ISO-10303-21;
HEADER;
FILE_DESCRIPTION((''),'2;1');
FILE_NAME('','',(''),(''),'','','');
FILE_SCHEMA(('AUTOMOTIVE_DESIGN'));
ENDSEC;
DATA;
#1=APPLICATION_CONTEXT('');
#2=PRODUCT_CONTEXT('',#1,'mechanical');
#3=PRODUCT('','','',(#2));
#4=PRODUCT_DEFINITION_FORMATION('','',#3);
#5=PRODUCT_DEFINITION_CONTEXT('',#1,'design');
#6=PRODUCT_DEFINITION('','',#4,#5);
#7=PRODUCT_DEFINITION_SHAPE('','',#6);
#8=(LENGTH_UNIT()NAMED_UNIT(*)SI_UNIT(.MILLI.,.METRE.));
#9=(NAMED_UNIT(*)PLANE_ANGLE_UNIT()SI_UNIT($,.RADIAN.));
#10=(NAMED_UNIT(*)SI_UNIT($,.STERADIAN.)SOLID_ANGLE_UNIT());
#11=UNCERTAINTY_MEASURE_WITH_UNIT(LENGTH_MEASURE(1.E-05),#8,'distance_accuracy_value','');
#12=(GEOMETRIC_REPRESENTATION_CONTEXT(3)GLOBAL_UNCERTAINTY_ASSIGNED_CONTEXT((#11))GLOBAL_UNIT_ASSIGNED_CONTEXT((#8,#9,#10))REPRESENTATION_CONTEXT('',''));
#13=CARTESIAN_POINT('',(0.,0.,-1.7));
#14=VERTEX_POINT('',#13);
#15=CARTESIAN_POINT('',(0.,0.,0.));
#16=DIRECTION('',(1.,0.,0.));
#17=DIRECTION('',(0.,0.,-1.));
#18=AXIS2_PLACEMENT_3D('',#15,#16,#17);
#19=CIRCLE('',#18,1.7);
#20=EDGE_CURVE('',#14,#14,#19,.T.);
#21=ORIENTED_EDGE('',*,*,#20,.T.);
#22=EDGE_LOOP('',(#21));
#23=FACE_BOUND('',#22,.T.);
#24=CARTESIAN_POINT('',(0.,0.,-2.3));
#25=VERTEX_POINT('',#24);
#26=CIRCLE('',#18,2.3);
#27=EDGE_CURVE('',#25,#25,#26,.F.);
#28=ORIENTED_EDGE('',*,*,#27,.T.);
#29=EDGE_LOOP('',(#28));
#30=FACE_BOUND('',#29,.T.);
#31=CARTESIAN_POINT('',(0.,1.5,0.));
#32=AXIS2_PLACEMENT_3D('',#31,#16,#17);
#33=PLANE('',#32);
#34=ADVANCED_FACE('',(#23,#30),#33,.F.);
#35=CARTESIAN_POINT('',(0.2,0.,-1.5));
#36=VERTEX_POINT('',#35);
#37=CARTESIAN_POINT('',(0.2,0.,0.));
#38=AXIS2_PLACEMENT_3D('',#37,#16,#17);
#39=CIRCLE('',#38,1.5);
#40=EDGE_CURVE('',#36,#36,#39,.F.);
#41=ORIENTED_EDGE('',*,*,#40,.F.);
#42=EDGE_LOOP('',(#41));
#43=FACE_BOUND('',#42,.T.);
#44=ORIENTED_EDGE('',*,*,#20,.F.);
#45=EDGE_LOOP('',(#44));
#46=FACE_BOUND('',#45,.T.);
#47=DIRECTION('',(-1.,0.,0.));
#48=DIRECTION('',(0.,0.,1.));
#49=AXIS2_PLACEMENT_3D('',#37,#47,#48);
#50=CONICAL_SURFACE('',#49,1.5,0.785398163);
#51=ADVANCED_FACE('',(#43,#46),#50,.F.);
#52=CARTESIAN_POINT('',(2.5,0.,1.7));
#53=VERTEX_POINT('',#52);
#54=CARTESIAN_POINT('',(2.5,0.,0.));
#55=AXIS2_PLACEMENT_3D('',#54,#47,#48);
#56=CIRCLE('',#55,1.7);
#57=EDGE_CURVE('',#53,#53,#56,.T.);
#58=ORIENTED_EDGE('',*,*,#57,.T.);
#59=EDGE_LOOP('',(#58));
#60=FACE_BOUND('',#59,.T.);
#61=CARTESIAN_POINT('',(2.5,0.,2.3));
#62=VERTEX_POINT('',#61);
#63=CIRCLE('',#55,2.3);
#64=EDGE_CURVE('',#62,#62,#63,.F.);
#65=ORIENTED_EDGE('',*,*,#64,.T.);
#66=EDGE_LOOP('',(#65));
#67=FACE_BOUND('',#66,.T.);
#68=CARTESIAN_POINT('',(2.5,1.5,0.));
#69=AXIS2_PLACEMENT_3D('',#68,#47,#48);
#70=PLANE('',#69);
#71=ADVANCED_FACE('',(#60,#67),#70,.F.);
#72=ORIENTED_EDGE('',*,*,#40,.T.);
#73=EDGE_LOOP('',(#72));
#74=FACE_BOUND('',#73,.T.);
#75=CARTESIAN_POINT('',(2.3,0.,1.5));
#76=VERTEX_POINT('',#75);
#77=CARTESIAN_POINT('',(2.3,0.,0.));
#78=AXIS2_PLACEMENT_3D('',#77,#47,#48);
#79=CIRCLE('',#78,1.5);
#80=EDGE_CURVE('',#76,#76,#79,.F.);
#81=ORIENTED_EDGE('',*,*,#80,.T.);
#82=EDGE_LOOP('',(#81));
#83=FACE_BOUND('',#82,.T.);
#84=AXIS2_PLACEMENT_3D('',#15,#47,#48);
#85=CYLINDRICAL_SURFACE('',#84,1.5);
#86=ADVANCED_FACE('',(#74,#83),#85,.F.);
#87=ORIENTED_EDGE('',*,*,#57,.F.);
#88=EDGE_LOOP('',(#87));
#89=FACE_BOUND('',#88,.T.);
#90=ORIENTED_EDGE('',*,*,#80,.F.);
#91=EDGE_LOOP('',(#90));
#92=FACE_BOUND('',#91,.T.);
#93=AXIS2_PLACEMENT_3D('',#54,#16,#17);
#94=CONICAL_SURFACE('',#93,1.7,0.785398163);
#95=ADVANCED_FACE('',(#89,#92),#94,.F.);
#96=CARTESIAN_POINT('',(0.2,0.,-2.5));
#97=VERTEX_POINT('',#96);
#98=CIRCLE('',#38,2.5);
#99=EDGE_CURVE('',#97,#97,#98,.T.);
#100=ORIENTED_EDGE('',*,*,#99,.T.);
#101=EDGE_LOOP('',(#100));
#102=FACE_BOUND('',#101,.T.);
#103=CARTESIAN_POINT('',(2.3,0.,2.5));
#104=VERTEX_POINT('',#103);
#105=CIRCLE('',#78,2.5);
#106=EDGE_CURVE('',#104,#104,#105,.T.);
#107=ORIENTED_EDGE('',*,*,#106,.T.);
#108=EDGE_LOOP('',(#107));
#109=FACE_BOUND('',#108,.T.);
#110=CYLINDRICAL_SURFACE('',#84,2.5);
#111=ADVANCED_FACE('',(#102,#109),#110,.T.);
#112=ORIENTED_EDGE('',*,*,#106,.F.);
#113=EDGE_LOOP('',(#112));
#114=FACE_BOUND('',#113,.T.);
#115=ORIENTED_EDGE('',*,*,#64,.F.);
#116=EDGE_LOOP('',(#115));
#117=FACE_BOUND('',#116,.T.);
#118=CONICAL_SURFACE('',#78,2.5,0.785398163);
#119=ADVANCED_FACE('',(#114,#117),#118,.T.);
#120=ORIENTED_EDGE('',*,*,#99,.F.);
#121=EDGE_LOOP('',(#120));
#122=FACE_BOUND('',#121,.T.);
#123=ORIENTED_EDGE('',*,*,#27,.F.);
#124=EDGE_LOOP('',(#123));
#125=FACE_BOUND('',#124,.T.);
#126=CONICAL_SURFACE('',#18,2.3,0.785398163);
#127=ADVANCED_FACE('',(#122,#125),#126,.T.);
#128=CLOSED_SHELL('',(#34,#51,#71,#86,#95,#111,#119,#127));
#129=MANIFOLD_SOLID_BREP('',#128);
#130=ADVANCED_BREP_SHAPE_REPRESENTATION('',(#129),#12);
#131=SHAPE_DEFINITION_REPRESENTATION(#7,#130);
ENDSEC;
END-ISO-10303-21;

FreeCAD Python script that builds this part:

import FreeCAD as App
import Part
import Sketcher
from FreeCAD import Vector
Q = App.Units.Quantity


def edges_at(feature, points):
    """Names of the edges that pass closest to the given points."""
    edges = feature.Shape.Edges
    near = lambda p: min(range(len(edges)), key=lambda i: edges[i].distToShape(Part.Vertex(*p))[0])
    return sorted({f"Edge{near(p) + 1}" for p in points})

doc = App.newDocument("Part")
body = doc.addObject("PartDesign::Body", "Body")

sketch1 = body.newObject("Sketcher::SketchObject", "Sketch")
sketch1.AttachmentSupport = (doc.getObject("XY_Plane"), [""])
sketch1.MapMode = "FlatFace"
sketch1.addGeometry([
    Part.LineSegment(Vector(0, 2.5, 0), Vector(0, 1.5, 0)),
    Part.LineSegment(Vector(0, 1.5, 0), Vector(2.5, 1.5, 0)),
    Part.LineSegment(Vector(2.5, 1.5, 0), Vector(2.5, 2.5, 0)),
    Part.LineSegment(Vector(2.5, 2.5, 0), Vector(0, 2.5, 0)),
], False)
sketch1.addConstraint([
    Sketcher.Constraint("Coincident", 0, 2, 1, 1),
    Sketcher.Constraint("Coincident", 1, 2, 2, 1),
    Sketcher.Constraint("Coincident", 2, 2, 3, 1),
    Sketcher.Constraint("Coincident", 3, 2, 0, 1),
    Sketcher.Constraint("Vertical", 0),
    Sketcher.Constraint("Horizontal", 1),
    Sketcher.Constraint("Vertical", 2),
    Sketcher.Constraint("Horizontal", 3),
    Sketcher.Constraint("PointOnObject", 0, 2, -2),
    Sketcher.Constraint("DistanceY", 0, 2, 0, 1, Q("1 mm")),
    Sketcher.Constraint("DistanceX", 1, 1, 1, 2, Q("2.5 mm")),
    Sketcher.Constraint("DistanceY", -1, 1, 0, 2, Q("1.5 mm")),
])
revolution = body.newObject("PartDesign::Revolution", "Revolution")
revolution.Profile = sketch1
revolution.ReferenceAxis = (sketch1, ["H_Axis"])
revolution.Angle = 360
doc.recompute()

chamfer = body.newObject("PartDesign::Chamfer", "Chamfer")
chamfer.Base = (revolution, edges_at(revolution, [
    (0, 0, -1.5),
    (2.5, 0, -1.5),
    (2.5, 0, -2.5),
    (0, 0, -2.5),
]))
chamfer.Size = 0.2

doc.recompute()
